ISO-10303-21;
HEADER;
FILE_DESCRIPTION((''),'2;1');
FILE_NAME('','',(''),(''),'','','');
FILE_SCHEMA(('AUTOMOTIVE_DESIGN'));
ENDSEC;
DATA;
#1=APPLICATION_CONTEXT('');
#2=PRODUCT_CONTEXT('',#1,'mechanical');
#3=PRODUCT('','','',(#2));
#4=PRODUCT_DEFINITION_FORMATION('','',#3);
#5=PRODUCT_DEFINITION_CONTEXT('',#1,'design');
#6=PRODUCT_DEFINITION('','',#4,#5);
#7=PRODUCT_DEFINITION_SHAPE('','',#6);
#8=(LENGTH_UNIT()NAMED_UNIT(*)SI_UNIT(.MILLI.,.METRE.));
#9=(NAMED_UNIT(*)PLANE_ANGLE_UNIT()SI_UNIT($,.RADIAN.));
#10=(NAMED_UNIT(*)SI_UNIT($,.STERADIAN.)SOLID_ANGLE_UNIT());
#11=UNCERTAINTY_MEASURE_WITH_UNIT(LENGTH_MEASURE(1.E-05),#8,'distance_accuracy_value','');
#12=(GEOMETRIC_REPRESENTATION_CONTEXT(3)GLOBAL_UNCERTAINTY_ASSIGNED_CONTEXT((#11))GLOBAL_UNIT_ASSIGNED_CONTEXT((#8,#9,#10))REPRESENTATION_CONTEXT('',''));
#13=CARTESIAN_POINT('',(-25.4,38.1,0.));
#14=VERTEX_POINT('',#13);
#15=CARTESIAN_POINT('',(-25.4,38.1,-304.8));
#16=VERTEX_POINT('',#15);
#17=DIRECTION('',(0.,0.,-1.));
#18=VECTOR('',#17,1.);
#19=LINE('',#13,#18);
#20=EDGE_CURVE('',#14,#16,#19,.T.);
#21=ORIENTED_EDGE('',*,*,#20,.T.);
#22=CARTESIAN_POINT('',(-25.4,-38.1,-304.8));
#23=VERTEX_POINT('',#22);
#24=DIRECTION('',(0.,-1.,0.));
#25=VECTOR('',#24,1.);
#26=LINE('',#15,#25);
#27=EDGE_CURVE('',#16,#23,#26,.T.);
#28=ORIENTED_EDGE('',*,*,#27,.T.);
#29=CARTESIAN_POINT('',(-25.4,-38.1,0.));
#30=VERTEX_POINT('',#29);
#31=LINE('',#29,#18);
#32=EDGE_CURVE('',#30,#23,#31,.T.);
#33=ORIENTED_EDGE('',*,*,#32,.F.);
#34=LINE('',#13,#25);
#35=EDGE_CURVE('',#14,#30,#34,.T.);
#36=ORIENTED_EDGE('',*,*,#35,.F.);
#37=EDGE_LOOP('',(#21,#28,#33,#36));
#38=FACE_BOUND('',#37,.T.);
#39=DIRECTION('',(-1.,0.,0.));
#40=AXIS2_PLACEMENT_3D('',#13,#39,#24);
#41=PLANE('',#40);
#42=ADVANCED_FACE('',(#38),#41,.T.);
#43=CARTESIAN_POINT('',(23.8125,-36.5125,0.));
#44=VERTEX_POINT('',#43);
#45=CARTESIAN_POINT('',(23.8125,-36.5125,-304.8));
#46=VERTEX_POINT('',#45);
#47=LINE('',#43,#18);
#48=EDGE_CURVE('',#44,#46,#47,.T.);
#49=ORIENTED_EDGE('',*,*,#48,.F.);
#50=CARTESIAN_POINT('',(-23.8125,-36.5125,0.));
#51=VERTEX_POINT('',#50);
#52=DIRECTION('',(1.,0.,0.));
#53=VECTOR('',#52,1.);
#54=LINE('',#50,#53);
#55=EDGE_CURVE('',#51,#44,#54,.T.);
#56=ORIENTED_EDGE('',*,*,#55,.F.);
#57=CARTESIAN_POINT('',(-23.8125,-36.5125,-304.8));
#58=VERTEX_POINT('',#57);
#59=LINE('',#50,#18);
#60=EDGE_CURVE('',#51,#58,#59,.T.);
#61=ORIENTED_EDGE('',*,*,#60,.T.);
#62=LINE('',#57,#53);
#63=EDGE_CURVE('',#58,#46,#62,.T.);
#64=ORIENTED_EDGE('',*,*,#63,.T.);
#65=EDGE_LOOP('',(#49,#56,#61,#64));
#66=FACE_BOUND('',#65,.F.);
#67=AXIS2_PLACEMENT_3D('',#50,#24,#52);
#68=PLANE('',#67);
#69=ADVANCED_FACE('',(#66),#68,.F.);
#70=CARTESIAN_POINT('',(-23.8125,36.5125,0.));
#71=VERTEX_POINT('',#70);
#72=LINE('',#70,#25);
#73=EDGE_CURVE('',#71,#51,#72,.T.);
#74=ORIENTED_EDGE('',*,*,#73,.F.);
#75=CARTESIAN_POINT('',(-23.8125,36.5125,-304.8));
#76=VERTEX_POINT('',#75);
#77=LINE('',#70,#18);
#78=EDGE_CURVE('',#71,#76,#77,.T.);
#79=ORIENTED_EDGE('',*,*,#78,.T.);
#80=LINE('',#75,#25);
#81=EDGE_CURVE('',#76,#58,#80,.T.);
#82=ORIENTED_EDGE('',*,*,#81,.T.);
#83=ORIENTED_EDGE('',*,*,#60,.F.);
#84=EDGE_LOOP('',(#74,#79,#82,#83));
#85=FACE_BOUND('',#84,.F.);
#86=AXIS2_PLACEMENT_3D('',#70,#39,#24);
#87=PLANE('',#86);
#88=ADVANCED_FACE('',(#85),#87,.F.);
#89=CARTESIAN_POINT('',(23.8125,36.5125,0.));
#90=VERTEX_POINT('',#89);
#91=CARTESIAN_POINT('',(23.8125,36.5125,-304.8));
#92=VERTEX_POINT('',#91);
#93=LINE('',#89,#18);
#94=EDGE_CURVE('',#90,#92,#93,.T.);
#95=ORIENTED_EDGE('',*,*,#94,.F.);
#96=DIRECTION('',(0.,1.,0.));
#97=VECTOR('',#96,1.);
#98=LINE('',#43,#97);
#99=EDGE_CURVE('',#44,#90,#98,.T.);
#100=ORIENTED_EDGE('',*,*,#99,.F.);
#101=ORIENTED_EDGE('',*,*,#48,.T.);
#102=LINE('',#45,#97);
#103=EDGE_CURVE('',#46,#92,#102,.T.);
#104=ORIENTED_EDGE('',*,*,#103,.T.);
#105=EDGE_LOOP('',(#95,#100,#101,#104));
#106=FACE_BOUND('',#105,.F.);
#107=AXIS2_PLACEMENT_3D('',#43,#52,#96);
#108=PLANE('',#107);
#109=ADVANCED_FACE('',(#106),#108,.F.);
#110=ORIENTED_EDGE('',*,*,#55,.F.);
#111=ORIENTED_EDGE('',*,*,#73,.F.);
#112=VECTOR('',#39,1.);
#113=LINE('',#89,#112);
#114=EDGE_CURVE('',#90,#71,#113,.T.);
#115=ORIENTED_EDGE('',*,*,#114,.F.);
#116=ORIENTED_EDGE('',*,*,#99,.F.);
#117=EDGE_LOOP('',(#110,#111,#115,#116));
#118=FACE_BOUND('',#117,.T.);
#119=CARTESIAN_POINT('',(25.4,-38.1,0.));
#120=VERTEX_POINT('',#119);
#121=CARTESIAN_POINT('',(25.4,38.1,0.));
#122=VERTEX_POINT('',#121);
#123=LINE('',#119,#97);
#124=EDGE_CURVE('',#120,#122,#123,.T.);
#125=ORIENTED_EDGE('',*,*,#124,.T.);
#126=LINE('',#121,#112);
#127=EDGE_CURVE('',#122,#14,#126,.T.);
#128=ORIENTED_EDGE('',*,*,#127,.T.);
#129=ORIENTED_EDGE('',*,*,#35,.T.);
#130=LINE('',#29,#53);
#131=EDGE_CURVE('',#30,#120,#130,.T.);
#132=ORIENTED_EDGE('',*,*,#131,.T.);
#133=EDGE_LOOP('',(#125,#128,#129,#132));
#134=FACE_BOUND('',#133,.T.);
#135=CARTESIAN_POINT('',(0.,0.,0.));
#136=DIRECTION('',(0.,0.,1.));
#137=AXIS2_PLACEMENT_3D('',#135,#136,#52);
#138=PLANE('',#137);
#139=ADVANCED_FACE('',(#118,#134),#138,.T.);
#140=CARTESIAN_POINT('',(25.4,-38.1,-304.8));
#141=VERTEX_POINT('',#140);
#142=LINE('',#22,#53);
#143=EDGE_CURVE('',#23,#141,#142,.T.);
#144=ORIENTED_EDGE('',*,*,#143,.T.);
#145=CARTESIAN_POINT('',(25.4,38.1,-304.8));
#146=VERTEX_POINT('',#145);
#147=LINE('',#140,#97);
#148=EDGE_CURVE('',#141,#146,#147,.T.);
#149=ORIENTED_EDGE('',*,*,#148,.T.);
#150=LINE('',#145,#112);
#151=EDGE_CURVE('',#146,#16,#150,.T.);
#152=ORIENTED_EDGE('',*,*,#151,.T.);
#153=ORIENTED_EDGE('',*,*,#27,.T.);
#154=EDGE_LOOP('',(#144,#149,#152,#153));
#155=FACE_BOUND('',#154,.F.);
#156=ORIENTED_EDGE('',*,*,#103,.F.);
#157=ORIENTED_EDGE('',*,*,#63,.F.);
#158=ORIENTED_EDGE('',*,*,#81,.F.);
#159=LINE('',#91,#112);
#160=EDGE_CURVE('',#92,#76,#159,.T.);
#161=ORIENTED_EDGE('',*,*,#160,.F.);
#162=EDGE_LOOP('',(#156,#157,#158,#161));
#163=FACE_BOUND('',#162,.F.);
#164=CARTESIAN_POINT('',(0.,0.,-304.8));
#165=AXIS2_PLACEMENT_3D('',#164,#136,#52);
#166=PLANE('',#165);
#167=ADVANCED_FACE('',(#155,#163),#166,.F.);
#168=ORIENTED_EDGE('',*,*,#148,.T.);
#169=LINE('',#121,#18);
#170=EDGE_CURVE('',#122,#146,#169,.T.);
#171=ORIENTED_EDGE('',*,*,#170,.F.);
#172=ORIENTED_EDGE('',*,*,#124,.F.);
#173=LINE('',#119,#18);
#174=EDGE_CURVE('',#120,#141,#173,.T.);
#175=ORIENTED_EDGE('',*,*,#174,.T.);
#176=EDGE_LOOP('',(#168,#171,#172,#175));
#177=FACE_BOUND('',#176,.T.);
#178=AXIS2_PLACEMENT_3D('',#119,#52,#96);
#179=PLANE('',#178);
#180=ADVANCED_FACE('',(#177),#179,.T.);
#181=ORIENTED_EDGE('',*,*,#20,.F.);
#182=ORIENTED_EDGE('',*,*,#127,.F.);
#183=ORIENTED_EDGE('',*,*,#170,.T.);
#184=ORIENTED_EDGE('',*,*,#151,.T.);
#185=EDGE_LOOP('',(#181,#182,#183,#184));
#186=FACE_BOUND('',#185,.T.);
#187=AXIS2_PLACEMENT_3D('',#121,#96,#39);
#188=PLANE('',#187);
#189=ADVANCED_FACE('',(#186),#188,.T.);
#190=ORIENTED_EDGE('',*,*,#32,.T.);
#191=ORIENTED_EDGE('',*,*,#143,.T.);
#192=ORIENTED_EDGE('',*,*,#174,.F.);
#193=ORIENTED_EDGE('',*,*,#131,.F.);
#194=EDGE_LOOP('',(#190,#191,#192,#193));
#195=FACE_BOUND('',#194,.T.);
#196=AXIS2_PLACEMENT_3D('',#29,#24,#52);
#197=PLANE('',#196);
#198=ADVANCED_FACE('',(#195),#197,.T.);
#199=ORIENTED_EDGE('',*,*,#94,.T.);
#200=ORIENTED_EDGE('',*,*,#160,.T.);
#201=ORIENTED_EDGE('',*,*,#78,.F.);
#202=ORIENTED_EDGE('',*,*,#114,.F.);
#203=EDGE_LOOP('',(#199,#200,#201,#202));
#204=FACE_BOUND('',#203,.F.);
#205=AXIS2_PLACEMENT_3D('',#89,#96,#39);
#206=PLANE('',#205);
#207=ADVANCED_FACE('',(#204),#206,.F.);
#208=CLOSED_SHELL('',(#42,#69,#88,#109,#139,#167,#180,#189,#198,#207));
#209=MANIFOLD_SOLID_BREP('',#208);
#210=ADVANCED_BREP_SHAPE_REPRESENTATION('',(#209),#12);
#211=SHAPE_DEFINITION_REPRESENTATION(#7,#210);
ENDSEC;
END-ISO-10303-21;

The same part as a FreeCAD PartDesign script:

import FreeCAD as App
import Part
import Sketcher

V = App.Vector
Q = App.Units.Quantity

doc = App.newDocument("Part")
body = doc.addObject("PartDesign::Body", "Body")

sketch1 = doc.addObject("Sketcher::SketchObject", "Sketch")
body.addObject(sketch1)
sketch1.AttachmentSupport = (doc.XY_Plane, [""])
sketch1.MapMode = "FlatFace"
sketch1.addGeometry([
    Part.LineSegment(V(-25, 38, 0), V(-25, -38, 0)),
    Part.LineSegment(V(-25, -38, 0), V(25, -38, 0)),
    Part.LineSegment(V(25, -38, 0), V(25, 38, 0)),
    Part.LineSegment(V(25, 38, 0), V(-25, 38, 0)),
    Part.LineSegment(V(24, -37, 0), V(-24, -37, 0)),
    Part.LineSegment(V(-24, -37, 0), V(-24, 37, 0)),
    Part.LineSegment(V(-24, 37, 0), V(24, 37, 0)),
    Part.LineSegment(V(24, 37, 0), V(24, -37, 0)),
], False)
sketch1.addConstraint([
    Sketcher.Constraint("Coincident", 0, 2, 1, 1),
    Sketcher.Constraint("Coincident", 1, 2, 2, 1),
    Sketcher.Constraint("Coincident", 2, 2, 3, 1),
    Sketcher.Constraint("Coincident", 3, 2, 0, 1),
    Sketcher.Constraint("Coincident", 4, 2, 5, 1),
    Sketcher.Constraint("Coincident", 5, 2, 6, 1),
    Sketcher.Constraint("Coincident", 6, 2, 7, 1),
    Sketcher.Constraint("Coincident", 7, 2, 4, 1),
    Sketcher.Constraint("Vertical", 0),
    Sketcher.Constraint("Horizontal", 1),
    Sketcher.Constraint("Vertical", 2),
    Sketcher.Constraint("Horizontal", 3),
    Sketcher.Constraint("Horizontal", 4),
    Sketcher.Constraint("Vertical", 5),
    Sketcher.Constraint("Horizontal", 6),
    Sketcher.Constraint("Vertical", 7),
    Sketcher.Constraint("Symmetric", 0, 2, 2, 2, -1, 1),
    Sketcher.Constraint("Symmetric", 4, 2, 6, 2, -1, 1),
    Sketcher.Constraint("DistanceX", 1, 1, 1, 2, Q("2 in")),
    Sketcher.Constraint("DistanceY", 0, 2, 0, 1, Q("3 in")),
    Sketcher.Constraint("DistanceX", 0, 2, 4, 2, Q("0.0625 in")),
    Sketcher.Constraint("DistanceY", 0, 2, 4, 2, Q("0.0625 in")),
])
pad1 = doc.addObject("PartDesign::Pad", "Pad")
body.addObject(pad1)
pad1.Profile = sketch1
pad1.Length = Q("12 in")
pad1.Reversed = True

doc.recompute()
